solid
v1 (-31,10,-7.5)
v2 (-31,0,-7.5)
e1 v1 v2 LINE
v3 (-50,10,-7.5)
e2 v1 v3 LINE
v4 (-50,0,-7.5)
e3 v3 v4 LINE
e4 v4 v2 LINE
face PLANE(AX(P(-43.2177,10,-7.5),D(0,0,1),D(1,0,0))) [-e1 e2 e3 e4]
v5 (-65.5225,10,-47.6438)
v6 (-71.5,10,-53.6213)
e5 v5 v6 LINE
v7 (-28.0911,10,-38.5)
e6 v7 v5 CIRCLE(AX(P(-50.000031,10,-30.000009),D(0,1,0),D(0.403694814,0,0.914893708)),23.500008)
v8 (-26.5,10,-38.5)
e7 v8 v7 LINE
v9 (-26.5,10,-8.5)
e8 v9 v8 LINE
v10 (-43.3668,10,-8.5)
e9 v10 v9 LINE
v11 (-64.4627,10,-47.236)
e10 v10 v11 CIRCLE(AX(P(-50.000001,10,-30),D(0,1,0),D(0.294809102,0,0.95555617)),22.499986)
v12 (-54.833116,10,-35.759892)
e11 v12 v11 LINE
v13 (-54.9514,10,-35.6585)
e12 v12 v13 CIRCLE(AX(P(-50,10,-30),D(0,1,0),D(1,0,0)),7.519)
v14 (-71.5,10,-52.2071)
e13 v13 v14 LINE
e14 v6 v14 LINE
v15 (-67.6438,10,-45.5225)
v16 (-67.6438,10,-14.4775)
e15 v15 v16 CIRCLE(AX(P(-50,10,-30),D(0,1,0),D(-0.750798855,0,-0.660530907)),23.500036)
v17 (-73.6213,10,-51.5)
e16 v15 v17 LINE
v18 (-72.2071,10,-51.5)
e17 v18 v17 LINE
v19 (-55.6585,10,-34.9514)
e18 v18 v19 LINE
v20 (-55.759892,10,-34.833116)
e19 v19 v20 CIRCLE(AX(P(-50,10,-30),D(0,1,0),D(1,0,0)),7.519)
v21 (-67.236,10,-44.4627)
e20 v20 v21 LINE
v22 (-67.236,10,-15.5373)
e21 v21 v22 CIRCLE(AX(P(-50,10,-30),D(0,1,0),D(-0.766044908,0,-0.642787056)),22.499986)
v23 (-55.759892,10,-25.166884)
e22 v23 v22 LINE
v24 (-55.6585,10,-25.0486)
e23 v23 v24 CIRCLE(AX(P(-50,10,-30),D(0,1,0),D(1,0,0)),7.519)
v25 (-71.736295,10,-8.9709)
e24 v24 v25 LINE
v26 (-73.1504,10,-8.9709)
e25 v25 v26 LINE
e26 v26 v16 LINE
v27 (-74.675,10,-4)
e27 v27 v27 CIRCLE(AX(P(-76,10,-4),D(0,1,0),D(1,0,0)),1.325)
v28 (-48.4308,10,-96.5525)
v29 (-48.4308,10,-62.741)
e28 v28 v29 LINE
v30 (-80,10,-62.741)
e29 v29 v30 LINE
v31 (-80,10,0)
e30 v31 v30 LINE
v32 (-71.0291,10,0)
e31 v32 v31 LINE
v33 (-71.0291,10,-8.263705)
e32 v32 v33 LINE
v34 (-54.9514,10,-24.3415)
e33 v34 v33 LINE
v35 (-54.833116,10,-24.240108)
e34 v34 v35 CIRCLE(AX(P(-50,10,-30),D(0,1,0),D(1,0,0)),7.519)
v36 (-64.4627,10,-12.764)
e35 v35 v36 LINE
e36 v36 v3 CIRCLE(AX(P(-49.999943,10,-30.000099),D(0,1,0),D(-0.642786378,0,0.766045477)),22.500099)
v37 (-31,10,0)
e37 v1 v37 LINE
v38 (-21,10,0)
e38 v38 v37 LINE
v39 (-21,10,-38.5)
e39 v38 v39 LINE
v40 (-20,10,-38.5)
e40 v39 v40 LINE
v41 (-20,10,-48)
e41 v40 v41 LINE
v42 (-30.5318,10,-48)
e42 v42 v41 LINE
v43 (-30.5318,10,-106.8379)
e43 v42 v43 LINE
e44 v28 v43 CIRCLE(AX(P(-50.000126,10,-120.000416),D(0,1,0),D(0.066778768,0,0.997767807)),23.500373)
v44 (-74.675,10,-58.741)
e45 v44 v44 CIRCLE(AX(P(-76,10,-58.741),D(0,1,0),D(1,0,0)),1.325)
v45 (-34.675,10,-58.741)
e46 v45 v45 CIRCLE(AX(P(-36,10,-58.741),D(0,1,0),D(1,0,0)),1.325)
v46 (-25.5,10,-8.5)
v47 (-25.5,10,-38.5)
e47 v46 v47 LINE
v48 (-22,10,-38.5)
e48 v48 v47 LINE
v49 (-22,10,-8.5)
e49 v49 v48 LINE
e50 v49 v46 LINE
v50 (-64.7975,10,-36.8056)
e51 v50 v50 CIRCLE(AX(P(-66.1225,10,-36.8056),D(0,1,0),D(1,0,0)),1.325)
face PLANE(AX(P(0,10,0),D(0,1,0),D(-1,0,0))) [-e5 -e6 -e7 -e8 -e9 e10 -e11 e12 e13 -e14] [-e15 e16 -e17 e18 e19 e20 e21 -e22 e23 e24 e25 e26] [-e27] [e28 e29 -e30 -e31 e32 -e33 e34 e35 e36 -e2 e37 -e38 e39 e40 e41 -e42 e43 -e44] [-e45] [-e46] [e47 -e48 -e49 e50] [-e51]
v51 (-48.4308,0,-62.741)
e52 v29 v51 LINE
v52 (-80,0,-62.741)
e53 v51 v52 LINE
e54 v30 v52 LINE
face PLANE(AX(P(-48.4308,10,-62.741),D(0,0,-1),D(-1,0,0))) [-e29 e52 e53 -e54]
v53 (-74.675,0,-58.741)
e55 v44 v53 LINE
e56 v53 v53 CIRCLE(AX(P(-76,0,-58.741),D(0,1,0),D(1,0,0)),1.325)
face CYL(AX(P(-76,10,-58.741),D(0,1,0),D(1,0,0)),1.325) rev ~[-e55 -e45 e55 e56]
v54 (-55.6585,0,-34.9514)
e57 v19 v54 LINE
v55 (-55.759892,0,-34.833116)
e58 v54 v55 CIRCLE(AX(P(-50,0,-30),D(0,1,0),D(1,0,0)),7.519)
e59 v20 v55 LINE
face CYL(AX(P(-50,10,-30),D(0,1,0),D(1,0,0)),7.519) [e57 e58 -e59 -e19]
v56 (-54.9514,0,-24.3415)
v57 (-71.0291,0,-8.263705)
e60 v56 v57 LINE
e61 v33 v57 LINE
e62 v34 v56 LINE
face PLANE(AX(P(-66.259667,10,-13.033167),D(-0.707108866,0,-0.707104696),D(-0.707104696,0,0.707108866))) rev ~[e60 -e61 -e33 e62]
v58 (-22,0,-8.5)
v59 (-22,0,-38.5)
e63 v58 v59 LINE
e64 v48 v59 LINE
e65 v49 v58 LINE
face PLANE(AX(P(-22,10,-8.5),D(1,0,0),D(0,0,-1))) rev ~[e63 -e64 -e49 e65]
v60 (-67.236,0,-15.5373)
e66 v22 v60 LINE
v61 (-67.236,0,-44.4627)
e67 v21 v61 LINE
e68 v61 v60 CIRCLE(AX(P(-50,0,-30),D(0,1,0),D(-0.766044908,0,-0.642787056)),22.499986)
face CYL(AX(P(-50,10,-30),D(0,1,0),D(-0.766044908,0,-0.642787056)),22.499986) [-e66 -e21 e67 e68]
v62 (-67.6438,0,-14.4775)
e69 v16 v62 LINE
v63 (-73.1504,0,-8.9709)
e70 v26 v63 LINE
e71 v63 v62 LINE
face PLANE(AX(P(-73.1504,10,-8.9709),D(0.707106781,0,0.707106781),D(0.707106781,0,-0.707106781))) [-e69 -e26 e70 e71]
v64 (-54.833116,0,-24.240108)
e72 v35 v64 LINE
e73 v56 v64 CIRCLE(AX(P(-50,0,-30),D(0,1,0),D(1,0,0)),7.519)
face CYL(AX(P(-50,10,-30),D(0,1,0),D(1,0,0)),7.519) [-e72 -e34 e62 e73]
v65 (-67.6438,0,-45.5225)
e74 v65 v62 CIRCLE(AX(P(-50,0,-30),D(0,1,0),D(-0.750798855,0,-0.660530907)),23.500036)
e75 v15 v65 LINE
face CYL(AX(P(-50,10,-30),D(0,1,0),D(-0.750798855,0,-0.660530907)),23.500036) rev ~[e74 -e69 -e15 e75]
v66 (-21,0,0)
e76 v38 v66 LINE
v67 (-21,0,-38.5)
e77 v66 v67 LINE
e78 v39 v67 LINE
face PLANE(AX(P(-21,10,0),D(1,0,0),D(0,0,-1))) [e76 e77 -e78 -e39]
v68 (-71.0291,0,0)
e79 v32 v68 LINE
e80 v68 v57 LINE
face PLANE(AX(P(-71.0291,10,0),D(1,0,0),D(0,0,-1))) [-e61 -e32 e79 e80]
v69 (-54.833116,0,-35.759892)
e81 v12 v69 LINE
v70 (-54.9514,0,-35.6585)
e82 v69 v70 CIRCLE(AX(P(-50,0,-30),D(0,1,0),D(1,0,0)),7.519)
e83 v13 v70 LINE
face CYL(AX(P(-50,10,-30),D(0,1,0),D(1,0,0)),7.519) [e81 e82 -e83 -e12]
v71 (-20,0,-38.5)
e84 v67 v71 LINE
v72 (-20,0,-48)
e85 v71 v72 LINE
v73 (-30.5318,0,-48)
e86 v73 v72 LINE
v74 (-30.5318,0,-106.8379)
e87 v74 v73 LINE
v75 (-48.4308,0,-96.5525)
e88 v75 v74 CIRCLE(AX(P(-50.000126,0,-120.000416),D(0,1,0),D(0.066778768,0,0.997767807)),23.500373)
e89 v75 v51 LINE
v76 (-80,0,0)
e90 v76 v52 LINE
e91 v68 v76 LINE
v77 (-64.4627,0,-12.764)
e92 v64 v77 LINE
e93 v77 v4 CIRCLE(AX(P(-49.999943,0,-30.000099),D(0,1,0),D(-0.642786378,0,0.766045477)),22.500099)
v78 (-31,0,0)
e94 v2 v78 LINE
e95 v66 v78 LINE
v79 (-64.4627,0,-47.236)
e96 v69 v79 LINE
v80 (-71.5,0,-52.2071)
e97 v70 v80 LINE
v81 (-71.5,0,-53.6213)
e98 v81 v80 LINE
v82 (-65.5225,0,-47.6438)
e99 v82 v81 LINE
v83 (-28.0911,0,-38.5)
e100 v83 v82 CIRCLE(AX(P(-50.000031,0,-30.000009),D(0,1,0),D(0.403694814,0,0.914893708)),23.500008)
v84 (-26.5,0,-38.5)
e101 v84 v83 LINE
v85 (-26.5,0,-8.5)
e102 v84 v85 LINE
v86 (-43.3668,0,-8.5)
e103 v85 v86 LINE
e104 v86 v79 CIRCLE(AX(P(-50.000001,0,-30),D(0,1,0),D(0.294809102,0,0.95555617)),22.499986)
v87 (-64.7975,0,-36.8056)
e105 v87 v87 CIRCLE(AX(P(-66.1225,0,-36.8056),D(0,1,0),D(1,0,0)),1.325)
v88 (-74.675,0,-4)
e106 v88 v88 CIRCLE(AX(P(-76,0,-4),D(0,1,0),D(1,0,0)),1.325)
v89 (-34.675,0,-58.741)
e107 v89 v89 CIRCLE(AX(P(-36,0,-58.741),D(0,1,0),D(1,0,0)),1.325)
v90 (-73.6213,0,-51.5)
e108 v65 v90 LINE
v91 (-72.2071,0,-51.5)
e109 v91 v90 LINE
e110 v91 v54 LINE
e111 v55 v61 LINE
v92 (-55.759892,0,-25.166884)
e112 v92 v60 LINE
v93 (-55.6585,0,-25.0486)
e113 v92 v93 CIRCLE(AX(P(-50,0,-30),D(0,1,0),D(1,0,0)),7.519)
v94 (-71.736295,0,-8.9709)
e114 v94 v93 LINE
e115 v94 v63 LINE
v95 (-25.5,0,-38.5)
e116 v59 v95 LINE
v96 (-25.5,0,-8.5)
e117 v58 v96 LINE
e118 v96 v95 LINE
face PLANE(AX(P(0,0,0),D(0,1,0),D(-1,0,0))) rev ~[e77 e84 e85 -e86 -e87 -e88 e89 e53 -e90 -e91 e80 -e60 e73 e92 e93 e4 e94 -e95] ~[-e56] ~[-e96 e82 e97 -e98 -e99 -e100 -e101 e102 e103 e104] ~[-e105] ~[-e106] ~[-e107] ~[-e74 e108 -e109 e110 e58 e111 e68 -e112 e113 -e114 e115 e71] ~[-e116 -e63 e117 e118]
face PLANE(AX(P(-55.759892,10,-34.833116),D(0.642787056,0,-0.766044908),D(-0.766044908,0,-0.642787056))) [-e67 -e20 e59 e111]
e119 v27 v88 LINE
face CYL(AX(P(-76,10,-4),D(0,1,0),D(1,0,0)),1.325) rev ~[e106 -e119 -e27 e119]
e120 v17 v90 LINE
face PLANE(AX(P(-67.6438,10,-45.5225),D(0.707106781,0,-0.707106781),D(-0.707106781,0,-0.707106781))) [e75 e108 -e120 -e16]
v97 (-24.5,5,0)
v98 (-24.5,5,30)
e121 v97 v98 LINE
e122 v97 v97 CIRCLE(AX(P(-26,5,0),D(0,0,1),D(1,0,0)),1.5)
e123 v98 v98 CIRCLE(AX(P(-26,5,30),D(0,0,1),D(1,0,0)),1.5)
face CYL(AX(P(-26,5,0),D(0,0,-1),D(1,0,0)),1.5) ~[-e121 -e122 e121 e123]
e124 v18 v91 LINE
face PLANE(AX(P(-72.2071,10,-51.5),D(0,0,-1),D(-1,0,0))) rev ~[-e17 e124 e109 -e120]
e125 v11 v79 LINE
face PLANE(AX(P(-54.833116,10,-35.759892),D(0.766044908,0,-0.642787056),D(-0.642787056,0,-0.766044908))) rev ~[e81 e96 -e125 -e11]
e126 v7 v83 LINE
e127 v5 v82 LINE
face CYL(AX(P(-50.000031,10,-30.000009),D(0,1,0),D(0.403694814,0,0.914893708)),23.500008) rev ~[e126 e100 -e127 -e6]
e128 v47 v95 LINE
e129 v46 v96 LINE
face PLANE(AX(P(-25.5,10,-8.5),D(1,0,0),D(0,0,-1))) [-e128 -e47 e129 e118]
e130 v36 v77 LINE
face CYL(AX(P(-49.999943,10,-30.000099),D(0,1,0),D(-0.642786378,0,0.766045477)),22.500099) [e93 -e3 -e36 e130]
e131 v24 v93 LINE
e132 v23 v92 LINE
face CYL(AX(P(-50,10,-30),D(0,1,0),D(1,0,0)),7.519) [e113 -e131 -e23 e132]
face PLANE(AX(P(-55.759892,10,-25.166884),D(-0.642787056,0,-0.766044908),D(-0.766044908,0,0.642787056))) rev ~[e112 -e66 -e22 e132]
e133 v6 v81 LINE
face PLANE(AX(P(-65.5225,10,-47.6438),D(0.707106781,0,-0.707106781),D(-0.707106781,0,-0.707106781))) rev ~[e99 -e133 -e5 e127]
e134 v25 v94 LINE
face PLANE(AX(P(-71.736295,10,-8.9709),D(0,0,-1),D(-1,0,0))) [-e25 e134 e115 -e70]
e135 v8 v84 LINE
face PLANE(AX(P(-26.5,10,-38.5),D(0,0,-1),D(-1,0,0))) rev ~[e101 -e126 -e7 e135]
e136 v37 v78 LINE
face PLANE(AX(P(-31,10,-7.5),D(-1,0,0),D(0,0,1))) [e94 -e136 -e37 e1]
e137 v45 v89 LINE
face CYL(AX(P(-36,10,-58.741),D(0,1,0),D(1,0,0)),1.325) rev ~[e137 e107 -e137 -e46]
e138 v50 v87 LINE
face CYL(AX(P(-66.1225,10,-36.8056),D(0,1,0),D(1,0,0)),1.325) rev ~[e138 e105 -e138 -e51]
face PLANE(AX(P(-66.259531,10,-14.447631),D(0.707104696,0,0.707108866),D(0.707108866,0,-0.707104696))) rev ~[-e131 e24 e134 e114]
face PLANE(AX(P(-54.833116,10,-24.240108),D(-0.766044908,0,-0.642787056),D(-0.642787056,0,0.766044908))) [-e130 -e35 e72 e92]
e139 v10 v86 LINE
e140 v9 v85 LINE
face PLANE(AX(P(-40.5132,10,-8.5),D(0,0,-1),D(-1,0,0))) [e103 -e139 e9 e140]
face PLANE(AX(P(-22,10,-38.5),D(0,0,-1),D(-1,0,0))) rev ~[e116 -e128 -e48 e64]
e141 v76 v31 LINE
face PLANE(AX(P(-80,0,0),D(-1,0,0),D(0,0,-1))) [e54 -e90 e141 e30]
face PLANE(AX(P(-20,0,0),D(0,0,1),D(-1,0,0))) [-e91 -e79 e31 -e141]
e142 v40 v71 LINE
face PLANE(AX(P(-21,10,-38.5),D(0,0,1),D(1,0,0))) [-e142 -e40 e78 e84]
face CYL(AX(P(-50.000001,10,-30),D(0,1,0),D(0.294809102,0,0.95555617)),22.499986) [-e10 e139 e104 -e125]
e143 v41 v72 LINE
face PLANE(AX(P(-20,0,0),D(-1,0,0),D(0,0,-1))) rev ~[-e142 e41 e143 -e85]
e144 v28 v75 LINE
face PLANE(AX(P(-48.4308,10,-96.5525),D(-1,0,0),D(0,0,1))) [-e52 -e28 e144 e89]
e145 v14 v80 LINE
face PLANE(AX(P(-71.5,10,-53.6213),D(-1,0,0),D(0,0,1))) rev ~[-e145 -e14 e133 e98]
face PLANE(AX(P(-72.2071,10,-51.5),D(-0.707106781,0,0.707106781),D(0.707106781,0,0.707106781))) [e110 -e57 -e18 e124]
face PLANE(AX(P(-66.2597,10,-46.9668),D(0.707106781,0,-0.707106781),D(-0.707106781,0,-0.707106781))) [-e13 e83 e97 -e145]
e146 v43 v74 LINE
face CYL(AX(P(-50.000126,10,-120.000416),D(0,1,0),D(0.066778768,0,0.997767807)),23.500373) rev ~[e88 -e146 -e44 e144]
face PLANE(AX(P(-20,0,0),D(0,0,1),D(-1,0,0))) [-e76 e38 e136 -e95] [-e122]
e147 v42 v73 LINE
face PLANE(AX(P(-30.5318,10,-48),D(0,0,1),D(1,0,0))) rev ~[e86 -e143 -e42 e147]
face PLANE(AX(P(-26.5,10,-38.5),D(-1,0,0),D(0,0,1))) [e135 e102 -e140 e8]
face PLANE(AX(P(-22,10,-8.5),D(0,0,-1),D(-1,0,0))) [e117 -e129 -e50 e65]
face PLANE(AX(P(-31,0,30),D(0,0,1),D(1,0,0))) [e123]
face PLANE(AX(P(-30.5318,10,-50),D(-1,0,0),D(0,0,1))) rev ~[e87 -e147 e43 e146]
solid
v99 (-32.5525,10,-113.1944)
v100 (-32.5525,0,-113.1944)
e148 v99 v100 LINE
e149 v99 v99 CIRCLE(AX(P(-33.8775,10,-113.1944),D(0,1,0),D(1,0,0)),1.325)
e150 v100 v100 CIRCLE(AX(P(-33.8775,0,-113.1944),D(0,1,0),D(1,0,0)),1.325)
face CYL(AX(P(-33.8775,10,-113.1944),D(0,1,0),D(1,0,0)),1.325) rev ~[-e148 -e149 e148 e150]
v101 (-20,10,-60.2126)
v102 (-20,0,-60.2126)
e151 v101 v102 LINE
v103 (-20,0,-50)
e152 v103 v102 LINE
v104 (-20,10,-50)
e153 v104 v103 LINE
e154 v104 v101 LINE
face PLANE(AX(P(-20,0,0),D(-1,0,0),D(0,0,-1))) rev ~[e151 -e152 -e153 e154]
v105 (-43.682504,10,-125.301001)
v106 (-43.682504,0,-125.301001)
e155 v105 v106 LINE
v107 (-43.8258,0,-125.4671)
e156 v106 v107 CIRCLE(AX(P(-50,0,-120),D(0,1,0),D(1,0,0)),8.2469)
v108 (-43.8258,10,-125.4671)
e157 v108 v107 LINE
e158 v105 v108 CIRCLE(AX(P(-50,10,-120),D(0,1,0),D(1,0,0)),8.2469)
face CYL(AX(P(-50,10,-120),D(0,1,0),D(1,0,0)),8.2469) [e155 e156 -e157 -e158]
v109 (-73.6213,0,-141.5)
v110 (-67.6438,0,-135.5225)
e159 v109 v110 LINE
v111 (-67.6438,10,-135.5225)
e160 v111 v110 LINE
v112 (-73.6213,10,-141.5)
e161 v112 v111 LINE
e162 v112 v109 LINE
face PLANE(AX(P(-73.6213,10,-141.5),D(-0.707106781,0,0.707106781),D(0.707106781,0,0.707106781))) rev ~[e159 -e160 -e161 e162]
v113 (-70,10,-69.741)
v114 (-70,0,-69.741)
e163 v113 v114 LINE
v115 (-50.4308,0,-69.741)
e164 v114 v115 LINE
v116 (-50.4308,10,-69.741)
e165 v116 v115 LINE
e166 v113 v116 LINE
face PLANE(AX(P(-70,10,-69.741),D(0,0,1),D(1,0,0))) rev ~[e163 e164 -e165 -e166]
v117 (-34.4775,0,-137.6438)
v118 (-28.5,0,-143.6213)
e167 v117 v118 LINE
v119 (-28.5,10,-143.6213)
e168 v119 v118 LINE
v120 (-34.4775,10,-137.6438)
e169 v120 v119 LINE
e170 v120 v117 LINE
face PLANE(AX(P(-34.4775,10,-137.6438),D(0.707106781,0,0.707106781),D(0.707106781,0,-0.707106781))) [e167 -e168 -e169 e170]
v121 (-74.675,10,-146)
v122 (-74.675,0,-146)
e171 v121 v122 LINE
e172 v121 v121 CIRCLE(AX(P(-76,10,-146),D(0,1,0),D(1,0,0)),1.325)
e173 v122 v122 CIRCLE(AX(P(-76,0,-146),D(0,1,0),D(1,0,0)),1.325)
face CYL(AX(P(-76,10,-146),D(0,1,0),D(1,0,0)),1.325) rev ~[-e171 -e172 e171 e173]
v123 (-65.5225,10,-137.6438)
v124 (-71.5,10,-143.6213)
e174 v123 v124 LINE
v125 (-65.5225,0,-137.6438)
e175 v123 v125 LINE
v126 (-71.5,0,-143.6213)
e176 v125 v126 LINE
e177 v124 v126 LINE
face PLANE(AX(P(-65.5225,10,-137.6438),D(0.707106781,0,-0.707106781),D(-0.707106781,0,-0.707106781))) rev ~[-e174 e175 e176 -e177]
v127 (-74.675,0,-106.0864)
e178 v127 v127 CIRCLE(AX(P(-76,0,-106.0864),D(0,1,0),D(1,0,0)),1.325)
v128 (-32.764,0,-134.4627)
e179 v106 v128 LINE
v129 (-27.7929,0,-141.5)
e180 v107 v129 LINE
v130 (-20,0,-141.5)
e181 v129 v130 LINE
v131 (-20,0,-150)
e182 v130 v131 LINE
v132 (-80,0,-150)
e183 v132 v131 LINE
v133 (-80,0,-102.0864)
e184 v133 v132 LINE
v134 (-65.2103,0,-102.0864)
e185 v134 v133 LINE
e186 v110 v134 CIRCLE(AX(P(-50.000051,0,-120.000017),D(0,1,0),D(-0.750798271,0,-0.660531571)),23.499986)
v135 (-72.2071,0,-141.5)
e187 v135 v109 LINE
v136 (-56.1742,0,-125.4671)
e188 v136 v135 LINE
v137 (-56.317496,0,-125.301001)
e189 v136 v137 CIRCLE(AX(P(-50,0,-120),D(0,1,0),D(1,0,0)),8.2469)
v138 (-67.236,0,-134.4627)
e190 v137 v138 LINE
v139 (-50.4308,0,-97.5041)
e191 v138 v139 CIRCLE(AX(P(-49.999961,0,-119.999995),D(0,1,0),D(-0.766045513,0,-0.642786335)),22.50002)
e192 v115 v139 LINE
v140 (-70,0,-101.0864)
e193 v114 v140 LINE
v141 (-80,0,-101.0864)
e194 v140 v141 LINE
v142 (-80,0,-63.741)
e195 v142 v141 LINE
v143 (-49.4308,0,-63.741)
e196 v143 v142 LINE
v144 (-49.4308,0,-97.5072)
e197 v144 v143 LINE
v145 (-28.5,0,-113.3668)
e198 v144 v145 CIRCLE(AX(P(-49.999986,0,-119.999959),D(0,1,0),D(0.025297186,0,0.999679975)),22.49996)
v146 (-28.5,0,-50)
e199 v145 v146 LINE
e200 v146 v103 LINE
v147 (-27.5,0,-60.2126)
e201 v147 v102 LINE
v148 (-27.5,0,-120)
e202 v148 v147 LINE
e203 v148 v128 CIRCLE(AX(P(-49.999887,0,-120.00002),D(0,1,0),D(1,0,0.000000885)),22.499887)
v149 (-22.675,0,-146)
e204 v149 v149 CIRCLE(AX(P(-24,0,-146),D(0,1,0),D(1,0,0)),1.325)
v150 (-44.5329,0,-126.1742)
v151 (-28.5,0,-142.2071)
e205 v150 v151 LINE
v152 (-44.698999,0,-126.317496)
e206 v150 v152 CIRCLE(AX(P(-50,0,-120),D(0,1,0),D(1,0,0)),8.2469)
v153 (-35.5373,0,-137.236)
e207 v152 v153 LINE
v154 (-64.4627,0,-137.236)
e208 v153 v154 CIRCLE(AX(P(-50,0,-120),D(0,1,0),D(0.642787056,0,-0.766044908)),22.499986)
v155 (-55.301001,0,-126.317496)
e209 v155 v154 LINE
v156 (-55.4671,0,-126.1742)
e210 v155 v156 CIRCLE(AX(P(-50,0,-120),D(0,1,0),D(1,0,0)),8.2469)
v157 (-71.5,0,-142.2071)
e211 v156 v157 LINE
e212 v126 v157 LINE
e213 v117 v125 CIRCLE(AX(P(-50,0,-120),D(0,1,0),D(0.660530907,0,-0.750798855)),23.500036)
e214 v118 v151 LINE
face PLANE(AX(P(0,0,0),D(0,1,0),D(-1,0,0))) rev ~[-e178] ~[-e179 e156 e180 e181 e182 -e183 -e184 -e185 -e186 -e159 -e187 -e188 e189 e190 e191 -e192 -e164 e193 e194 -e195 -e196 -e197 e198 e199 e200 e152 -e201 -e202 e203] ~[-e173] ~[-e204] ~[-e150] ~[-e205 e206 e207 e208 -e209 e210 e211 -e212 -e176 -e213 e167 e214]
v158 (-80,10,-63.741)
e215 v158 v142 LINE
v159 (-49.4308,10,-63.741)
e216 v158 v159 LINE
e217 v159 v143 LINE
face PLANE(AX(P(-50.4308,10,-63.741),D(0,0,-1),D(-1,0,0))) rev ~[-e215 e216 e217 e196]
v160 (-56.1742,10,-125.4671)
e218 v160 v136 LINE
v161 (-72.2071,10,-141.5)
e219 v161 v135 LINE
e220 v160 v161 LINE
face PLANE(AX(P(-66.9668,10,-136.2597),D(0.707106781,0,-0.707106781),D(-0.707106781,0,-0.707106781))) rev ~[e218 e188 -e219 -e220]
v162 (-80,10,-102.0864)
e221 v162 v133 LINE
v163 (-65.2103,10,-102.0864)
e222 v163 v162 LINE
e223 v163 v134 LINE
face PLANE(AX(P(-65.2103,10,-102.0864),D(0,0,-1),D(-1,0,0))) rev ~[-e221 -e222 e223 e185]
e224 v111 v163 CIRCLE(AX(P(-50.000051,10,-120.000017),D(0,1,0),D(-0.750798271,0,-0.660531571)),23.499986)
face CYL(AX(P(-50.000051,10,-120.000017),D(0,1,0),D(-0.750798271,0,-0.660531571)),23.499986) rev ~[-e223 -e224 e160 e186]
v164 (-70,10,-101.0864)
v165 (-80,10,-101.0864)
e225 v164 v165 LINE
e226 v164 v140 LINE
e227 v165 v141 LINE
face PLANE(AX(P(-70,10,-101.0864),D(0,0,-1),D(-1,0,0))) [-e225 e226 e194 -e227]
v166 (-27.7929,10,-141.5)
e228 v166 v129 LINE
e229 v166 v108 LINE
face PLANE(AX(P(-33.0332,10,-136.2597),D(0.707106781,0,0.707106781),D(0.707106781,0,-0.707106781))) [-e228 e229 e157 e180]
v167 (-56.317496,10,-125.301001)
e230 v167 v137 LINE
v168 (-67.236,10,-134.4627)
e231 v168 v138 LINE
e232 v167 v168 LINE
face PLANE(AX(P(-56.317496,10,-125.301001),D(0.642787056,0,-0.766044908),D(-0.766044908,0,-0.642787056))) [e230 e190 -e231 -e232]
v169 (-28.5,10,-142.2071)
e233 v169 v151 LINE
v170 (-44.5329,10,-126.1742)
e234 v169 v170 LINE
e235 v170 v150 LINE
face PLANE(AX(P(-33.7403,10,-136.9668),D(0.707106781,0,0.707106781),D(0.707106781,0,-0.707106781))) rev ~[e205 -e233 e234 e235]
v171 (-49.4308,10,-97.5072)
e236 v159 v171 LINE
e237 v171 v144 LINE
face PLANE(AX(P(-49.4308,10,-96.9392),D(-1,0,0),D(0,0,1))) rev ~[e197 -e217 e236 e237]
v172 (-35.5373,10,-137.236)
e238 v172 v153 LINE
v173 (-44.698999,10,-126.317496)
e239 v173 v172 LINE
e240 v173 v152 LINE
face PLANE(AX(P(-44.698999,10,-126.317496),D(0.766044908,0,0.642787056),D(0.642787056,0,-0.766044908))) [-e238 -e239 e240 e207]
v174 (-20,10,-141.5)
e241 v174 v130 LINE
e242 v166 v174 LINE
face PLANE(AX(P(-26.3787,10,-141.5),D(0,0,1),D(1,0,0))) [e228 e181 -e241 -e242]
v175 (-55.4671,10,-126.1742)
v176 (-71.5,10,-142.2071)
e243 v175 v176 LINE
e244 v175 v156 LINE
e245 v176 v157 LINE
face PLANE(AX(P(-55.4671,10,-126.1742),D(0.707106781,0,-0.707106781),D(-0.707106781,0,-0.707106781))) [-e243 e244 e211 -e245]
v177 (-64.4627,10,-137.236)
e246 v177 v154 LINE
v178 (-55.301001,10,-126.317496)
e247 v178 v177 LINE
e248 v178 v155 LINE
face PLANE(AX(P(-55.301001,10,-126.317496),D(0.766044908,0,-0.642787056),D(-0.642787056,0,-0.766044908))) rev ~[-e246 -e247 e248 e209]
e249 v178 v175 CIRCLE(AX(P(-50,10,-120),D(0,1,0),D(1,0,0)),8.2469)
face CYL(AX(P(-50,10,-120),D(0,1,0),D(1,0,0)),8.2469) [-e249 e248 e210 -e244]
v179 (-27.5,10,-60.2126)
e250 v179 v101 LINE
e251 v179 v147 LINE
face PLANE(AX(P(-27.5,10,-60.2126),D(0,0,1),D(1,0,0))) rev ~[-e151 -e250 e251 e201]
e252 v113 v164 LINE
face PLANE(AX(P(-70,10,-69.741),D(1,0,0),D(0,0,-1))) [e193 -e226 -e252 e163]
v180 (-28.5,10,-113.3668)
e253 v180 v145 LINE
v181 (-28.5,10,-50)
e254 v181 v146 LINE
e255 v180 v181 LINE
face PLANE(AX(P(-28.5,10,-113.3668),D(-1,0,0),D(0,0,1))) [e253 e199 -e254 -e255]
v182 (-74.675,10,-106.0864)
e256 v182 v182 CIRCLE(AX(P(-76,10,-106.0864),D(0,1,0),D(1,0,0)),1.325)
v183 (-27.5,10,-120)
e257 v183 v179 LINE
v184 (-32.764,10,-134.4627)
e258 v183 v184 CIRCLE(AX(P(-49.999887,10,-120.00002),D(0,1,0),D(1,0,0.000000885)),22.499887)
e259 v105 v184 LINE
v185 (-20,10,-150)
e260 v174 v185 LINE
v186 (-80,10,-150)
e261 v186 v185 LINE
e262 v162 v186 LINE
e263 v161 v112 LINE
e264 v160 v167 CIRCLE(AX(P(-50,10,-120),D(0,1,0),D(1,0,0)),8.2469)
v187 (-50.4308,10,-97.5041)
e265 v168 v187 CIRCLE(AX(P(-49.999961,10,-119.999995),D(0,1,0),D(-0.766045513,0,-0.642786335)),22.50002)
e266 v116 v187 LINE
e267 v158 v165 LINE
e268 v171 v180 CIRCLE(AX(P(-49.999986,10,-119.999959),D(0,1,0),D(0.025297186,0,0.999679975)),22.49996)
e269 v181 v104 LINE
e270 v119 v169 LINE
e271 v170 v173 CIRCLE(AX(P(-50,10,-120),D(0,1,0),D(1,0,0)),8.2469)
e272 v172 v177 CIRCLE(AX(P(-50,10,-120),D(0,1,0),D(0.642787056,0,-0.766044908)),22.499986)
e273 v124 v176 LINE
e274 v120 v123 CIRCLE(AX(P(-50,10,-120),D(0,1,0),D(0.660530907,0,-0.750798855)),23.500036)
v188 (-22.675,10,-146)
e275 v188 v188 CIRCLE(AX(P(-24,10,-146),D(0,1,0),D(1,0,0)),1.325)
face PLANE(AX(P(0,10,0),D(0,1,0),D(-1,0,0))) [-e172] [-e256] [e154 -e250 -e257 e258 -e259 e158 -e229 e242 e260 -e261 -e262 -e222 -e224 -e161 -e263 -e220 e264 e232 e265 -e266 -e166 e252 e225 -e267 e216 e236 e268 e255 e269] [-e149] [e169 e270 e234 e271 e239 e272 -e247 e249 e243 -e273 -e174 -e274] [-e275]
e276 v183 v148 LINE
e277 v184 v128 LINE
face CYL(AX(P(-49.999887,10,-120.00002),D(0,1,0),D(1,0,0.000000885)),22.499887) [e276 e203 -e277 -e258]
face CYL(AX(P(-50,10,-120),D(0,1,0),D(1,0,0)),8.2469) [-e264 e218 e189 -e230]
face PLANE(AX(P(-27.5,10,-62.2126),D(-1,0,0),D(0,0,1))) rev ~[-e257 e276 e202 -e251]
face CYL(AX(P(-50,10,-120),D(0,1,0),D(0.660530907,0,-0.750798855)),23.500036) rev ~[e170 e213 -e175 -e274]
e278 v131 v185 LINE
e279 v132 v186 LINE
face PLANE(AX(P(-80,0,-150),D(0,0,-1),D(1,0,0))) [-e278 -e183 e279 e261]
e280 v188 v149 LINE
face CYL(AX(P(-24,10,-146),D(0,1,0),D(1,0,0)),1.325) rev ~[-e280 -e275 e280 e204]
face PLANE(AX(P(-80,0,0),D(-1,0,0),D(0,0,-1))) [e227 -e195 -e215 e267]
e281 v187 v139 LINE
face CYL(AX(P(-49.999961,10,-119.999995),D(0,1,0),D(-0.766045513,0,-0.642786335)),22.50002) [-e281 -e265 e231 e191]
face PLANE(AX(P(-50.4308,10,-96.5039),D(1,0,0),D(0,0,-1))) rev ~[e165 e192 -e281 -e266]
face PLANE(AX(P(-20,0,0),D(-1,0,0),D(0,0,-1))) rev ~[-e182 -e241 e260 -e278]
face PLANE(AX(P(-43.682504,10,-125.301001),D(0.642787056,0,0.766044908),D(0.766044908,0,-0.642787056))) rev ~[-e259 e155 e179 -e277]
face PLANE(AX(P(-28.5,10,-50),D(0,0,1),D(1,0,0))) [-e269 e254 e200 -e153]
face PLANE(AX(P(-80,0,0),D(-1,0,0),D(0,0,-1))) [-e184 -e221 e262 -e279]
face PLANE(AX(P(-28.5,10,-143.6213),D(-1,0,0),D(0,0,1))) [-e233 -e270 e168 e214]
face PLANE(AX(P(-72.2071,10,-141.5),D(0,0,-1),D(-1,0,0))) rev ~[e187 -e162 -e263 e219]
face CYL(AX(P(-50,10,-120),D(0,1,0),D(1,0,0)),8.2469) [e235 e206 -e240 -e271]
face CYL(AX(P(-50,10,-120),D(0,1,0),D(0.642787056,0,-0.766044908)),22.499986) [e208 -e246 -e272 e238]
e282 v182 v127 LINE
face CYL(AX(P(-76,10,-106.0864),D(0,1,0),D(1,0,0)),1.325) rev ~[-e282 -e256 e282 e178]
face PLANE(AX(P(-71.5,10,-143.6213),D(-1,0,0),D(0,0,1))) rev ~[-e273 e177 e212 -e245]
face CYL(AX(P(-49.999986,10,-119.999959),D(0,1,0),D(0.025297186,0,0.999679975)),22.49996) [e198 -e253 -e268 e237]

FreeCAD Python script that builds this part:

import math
import FreeCAD as App
import Part
import Sketcher

V = App.Vector
Q = App.Units.Quantity


def add_polygon(sketch, points):
    """Adds a closed chain of lines whose ends are joined by coincident constraints."""
    first, n = sketch.GeometryCount, len(points)
    for a, b in zip(points, points[1:] + points[:1]):
        sketch.addGeometry(Part.LineSegment(App.Vector(*a, 0), App.Vector(*b, 0)), False)
    for i in range(n):
        sketch.addConstraint(Sketcher.Constraint("Coincident", first + i, 2, first + (i + 1) % n, 1))

doc = App.newDocument("Part")
body = doc.addObject("PartDesign::Body", "Body")
body.AllowCompound = True

sketch1 = body.newObject("Sketcher::SketchObject", "Sketch")
sketch1.AttachmentSupport = (doc.getObject("XZ_Plane"), [""])
sketch1.MapMode = "FlatFace"
add_polygon(sketch1, [(-80, 0), (-20, 0), (-20, -150), (-80, -150)])
sketch1.addConstraint([
    Sketcher.Constraint("Horizontal", 0),
    Sketcher.Constraint("Vertical", 1),
    Sketcher.Constraint("Horizontal", 2),
    Sketcher.Constraint("Vertical", 3),
    Sketcher.Constraint("PointOnObject", 0, 2, -1),
    Sketcher.Constraint("DistanceY", 1, 2, 1, 1, 150.0),
    Sketcher.Constraint("DistanceX", 0, 2, -1, 1, 20.0),
    Sketcher.Constraint("DistanceX", 0, 1, 0, 2, 60.0),
])
pad1 = body.newObject("PartDesign::Pad", "Pad")
pad1.Profile = sketch1
pad1.Length = 10
pad1.Reversed = True

sketch2 = body.newObject("Sketcher::SketchObject", "Sketch001")
sketch2.AttachmentSupport = (doc.getObject("XZ_Plane"), [""])
sketch2.MapMode = "FlatFace"
sketch2.AttachmentOffset = App.Placement(V(0, 0, -10), App.Rotation())
sketch2.addGeometry(Part.LineSegment(V(-65.21, -102.09, 0), V(-80, -102.09, 0)), False)
sketch2.addGeometry(Part.LineSegment(V(-80, -102.09, 0), V(-80, -101.09, 0)), False)
sketch2.addGeometry(Part.LineSegment(V(-80, -101.09, 0), V(-70, -101.09, 0)), False)
sketch2.addGeometry(Part.LineSegment(V(-70, -101.09, 0), V(-70, -69.74, 0)), False)
sketch2.addGeometry(Part.LineSegment(V(-70, -69.74, 0), V(-50.43, -69.74, 0)), False)
sketch2.addGeometry(Part.LineSegment(V(-50.43, -69.74, 0), V(-50.43, -97.5, 0)), False)
sketch2.addGeometry(Part.ArcOfCircle(Part.Circle(V(-50, -120, 0), V(0, 0, 1), 22.5), math.radians(91), math.radians(220)), False)
sketch2.addGeometry(Part.LineSegment(V(-67.24, -134.46, 0), V(-56.32, -125.3, 0)), False)
sketch2.addGeometry(Part.ArcOfCircle(Part.Circle(V(-50, -120, 0), V(0, 0, 1), 8.25), math.radians(-140), math.radians(-138.48)), False)
sketch2.addGeometry(Part.LineSegment(V(-56.17, -125.47, 0), V(-72.21, -141.5, 0)), False)
sketch2.addGeometry(Part.LineSegment(V(-72.21, -141.5, 0), V(-73.62, -141.5, 0)), False)
sketch2.addGeometry(Part.LineSegment(V(-73.62, -141.5, 0), V(-67.64, -135.52, 0)), False)
sketch2.addGeometry(Part.ArcOfCircle(Part.Circle(V(-50, -120, 0), V(0, 0, 1), 23.5), math.radians(130), math.radians(221)), False)
sketch2.addGeometry(Part.LineSegment(V(-65.52, -137.64, 0), V(-71.5, -143.62, 0)), False)
sketch2.addGeometry(Part.LineSegment(V(-71.5, -143.62, 0), V(-71.5, -142.21, 0)), False)
sketch2.addGeometry(Part.LineSegment(V(-71.5, -142.21, 0), V(-55.47, -126.17, 0)), False)
sketch2.addGeometry(Part.ArcOfCircle(Part.Circle(V(-50, -120, 0), V(0, 0, 1), 8.25), math.radians(-131.52), math.radians(-130)), False)
sketch2.addGeometry(Part.LineSegment(V(-55.3, -126.32, 0), V(-64.46, -137.24, 0)), False)
sketch2.addGeometry(Part.ArcOfCircle(Part.Circle(V(-50, -120, 0), V(0, 0, 1), 22.5), math.radians(-130), math.radians(-50)), False)
sketch2.addGeometry(Part.LineSegment(V(-35.54, -137.24, 0), V(-44.7, -126.32, 0)), False)
sketch2.addGeometry(Part.ArcOfCircle(Part.Circle(V(-50, -120, 0), V(0, 0, 1), 8.25), math.radians(-50), math.radians(-48.48)), False)
sketch2.addGeometry(Part.LineSegment(V(-44.53, -126.17, 0), V(-28.5, -142.21, 0)), False)
sketch2.addGeometry(Part.LineSegment(V(-28.5, -142.21, 0), V(-28.5, -143.62, 0)), False)
sketch2.addGeometry(Part.LineSegment(V(-28.5, -143.62, 0), V(-34.48, -137.64, 0)), False)
sketch2.addGeometry(Part.ArcOfCircle(Part.Circle(V(-50, -120, 0), V(0, 0, 1), 23.5), math.radians(-131), math.radians(-49)), False)
sketch2.addGeometry(Part.LineSegment(V(-20, -141.5, 0), V(-27.79, -141.5, 0)), False)
sketch2.addGeometry(Part.LineSegment(V(-27.79, -141.5, 0), V(-43.83, -125.47, 0)), False)
sketch2.addGeometry(Part.ArcOfCircle(Part.Circle(V(-50, -120, 0), V(0, 0, 1), 8.25), math.radians(-41.52), math.radians(-40)), False)
sketch2.addGeometry(Part.LineSegment(V(-43.68, -125.3, 0), V(-32.76, -134.46, 0)), False)
sketch2.addGeometry(Part.ArcOfCircle(Part.Circle(V(-50, -120, 0), V(0, 0, 1), 22.5), math.radians(-40), math.radians(0)), False)
sketch2.addGeometry(Part.LineSegment(V(-27.5, -120, 0), V(-27.5, -60.21, 0)), False)
sketch2.addGeometry(Part.LineSegment(V(-27.5, -60.21, 0), V(-20, -60.21, 0)), False)
sketch2.addGeometry(Part.LineSegment(V(-20, -60.21, 0), V(-20, -141.5, 0)), False)
sketch2.addGeometry(Part.LineSegment(V(-49.43, -63.74, 0), V(-80, -63.74, 0)), False)
sketch2.addGeometry(Part.LineSegment(V(-80, -63.74, 0), V(-80, -62.74, 0)), False)
sketch2.addGeometry(Part.LineSegment(V(-80, -62.74, 0), V(-48.43, -62.74, 0)), False)
sketch2.addGeometry(Part.LineSegment(V(-48.43, -62.74, 0), V(-48.43, -96.55, 0)), False)
sketch2.addGeometry(Part.ArcOfCircle(Part.Circle(V(-50, -120, 0), V(0, 0, 1), 23.5), math.radians(34), math.radians(86)), False)
sketch2.addGeometry(Part.LineSegment(V(-30.53, -106.84, 0), V(-30.53, -48, 0)), False)
sketch2.addGeometry(Part.LineSegment(V(-30.53, -48, 0), V(-20, -48, 0)), False)
sketch2.addGeometry(Part.LineSegment(V(-20, -48, 0), V(-20, -50, 0)), False)
sketch2.addGeometry(Part.LineSegment(V(-20, -50, 0), V(-28.5, -50, 0)), False)
sketch2.addGeometry(Part.LineSegment(V(-28.5, -50, 0), V(-28.5, -113.37, 0)), False)
sketch2.addGeometry(Part.ArcOfCircle(Part.Circle(V(-50, -120, 0), V(0, 0, 1), 22.5), math.radians(17), math.radians(89)), False)
sketch2.addGeometry(Part.LineSegment(V(-49.43, -97.51, 0), V(-49.43, -63.74, 0)), False)
add_polygon(sketch2, [(-20, 0), (-20, -38.5), (-21, -38.5), (-21, 0)])
sketch2.addGeometry(Part.LineSegment(V(-72.21, -51.5, 0), V(-73.62, -51.5, 0)), False)
sketch2.addGeometry(Part.LineSegment(V(-73.62, -51.5, 0), V(-67.64, -45.52, 0)), False)
sketch2.addGeometry(Part.ArcOfCircle(Part.Circle(V(-50, -30, 0), V(0, 0, 1), 23.5), math.radians(139), math.radians(221)), False)
sketch2.addGeometry(Part.LineSegment(V(-67.64, -14.48, 0), V(-73.15, -8.97, 0)), False)
sketch2.addGeometry(Part.LineSegment(V(-73.15, -8.97, 0), V(-71.74, -8.97, 0)), False)
sketch2.addGeometry(Part.LineSegment(V(-71.74, -8.97, 0), V(-55.66, -25.05, 0)), False)
sketch2.addGeometry(Part.ArcOfCircle(Part.Circle(V(-50, -30, 0), V(0, 0, 1), 7.52), math.radians(138.81), math.radians(140)), False)
sketch2.addGeometry(Part.LineSegment(V(-55.76, -25.17, 0), V(-67.24, -15.54, 0)), False)
sketch2.addGeometry(Part.ArcOfCircle(Part.Circle(V(-50, -30, 0), V(0, 0, 1), 22.5), math.radians(140), math.radians(220)), False)
sketch2.addGeometry(Part.LineSegment(V(-67.24, -44.46, 0), V(-55.76, -34.83, 0)), False)
sketch2.addGeometry(Part.ArcOfCircle(Part.Circle(V(-50, -30, 0), V(0, 0, 1), 7.52), math.radians(-140), math.radians(-138.81)), False)
sketch2.addGeometry(Part.LineSegment(V(-55.66, -34.95, 0), V(-72.21, -51.5, 0)), False)
sketch2.addGeometry(Part.LineSegment(V(-71.5, -53.62, 0), V(-71.5, -52.21, 0)), False)
sketch2.addGeometry(Part.LineSegment(V(-71.5, -52.21, 0), V(-54.95, -35.66, 0)), False)
sketch2.addGeometry(Part.ArcOfCircle(Part.Circle(V(-50, -30, 0), V(0, 0, 1), 7.52), math.radians(-131.19), math.radians(-130)), False)
sketch2.addGeometry(Part.LineSegment(V(-54.83, -35.76, 0), V(-64.46, -47.24, 0)), False)
sketch2.addGeometry(Part.ArcOfCircle(Part.Circle(V(-50, -30, 0), V(0, 0, 1), 22.5), math.radians(-130), math.radians(73)), False)
sketch2.addGeometry(Part.LineSegment(V(-43.37, -8.5, 0), V(-26.5, -8.5, 0)), False)
sketch2.addGeometry(Part.LineSegment(V(-26.5, -8.5, 0), V(-26.5, -38.5, 0)), False)
sketch2.addGeometry(Part.LineSegment(V(-26.5, -38.5, 0), V(-28.09, -38.5, 0)), False)
sketch2.addGeometry(Part.ArcOfCircle(Part.Circle(V(-50, -30, 0), V(0, 0, 1), 23.5), math.radians(-131), math.radians(-21)), False)
sketch2.addGeometry(Part.LineSegment(V(-65.52, -47.64, 0), V(-71.5, -53.62, 0)), False)
add_polygon(sketch2, [(-22, -8.5), (-22, -38.5), (-25.5, -38.5), (-25.5, -8.5)])
sketch2.addGeometry(Part.LineSegment(V(-71.03, 0, 0), V(-31, 0, 0)), False)
sketch2.addGeometry(Part.LineSegment(V(-31, 0, 0), V(-31, -7.5, 0)), False)
sketch2.addGeometry(Part.LineSegment(V(-31, -7.5, 0), V(-50, -7.5, 0)), False)
sketch2.addGeometry(Part.ArcOfCircle(Part.Circle(V(-50, -30, 0), V(0, 0, 1), 22.5), math.radians(90), math.radians(130)), False)
sketch2.addGeometry(Part.LineSegment(V(-64.46, -12.76, 0), V(-54.83, -24.24, 0)), False)
sketch2.addGeometry(Part.ArcOfCircle(Part.Circle(V(-50, -30, 0), V(0, 0, 1), 7.52), math.radians(130), math.radians(131.19)), False)
sketch2.addGeometry(Part.LineSegment(V(-54.95, -24.34, 0), V(-71.03, -8.26, 0)), False)
sketch2.addGeometry(Part.LineSegment(V(-71.03, -8.26, 0), V(-71.03, 0, 0)), False)
sketch2.addConstraint([
    Sketcher.Constraint("Coincident", 0, 2, 1, 1),
    Sketcher.Constraint("Coincident", 1, 2, 2, 1),
    Sketcher.Constraint("Coincident", 2, 2, 3, 1),
    Sketcher.Constraint("Coincident", 3, 2, 4, 1),
    Sketcher.Constraint("Coincident", 4, 2, 5, 1),
    Sketcher.Constraint("Coincident", 5, 2, 6, 1),
    Sketcher.Constraint("Coincident", 6, 2, 7, 1),
    Sketcher.Constraint("Coincident", 7, 2, 8, 1),
    Sketcher.Constraint("Coincident", 8, 2, 9, 1),
    Sketcher.Constraint("Coincident", 9, 2, 10, 1),
    Sketcher.Constraint("Coincident", 10, 2, 11, 1),
    Sketcher.Constraint("Coincident", 11, 2, 12, 2),
    Sketcher.Constraint("Coincident", 12, 1, 0, 1),
    Sketcher.Constraint("Coincident", 13, 2, 14, 1),
    Sketcher.Constraint("Coincident", 14, 2, 15, 1),
    Sketcher.Constraint("Coincident", 15, 2, 16, 1),
    Sketcher.Constraint("Coincident", 16, 2, 17, 1),
    Sketcher.Constraint("Coincident", 17, 2, 18, 1),
    Sketcher.Constraint("Coincident", 18, 2, 19, 1),
    Sketcher.Constraint("Coincident", 19, 2, 20, 1),
    Sketcher.Constraint("Coincident", 20, 2, 21, 1),
    Sketcher.Constraint("Coincident", 21, 2, 22, 1),
    Sketcher.Constraint("Coincident", 22, 2, 23, 1),
    Sketcher.Constraint("Coincident", 23, 2, 24, 2),
    Sketcher.Constraint("Coincident", 24, 1, 13, 1),
    Sketcher.Constraint("Coincident", 25, 2, 26, 1),
    Sketcher.Constraint("Coincident", 26, 2, 27, 1),
    Sketcher.Constraint("Coincident", 27, 2, 28, 1),
    Sketcher.Constraint("Coincident", 28, 2, 29, 1),
    Sketcher.Constraint("Tangent", 29, 2, 30, 1),
    Sketcher.Constraint("Coincident", 30, 2, 31, 1),
    Sketcher.Constraint("Coincident", 31, 2, 32, 1),
    Sketcher.Constraint("Coincident", 32, 2, 25, 1),
    Sketcher.Constraint("Coincident", 33, 2, 34, 1),
    Sketcher.Constraint("Coincident", 34, 2, 35, 1),
    Sketcher.Constraint("Coincident", 35, 2, 36, 1),
    Sketcher.Constraint("Coincident", 36, 2, 37, 2),
    Sketcher.Constraint("Coincident", 37, 1, 38, 1),
    Sketcher.Constraint("Coincident", 38, 2, 39, 1),
    Sketcher.Constraint("Coincident", 39, 2, 40, 1),
    Sketcher.Constraint("Coincident", 40, 2, 41, 1),
    Sketcher.Constraint("Coincident", 41, 2, 42, 1),
    Sketcher.Constraint("Coincident", 42, 2, 43, 1),
    Sketcher.Constraint("Coincident", 43, 2, 44, 1),
    Sketcher.Constraint("Coincident", 44, 2, 33, 1),
    Sketcher.Constraint("Coincident", 49, 2, 50, 1),
    Sketcher.Constraint("Coincident", 50, 2, 51, 2),
    Sketcher.Constraint("Coincident", 51, 1, 52, 1),
    Sketcher.Constraint("Coincident", 52, 2, 53, 1),
    Sketcher.Constraint("Coincident", 53, 2, 54, 1),
    Sketcher.Constraint("Coincident", 54, 2, 55, 1),
    Sketcher.Constraint("Coincident", 55, 2, 56, 1),
    Sketcher.Constraint("Coincident", 56, 2, 57, 1),
    Sketcher.Constraint("Coincident", 57, 2, 58, 1),
    Sketcher.Constraint("Coincident", 58, 2, 59, 1),
    Sketcher.Constraint("Coincident", 59, 2, 60, 1),
    Sketcher.Constraint("Coincident", 60, 2, 49, 1),
    Sketcher.Constraint("Coincident", 61, 2, 62, 1),
    Sketcher.Constraint("Coincident", 62, 2, 63, 1),
    Sketcher.Constraint("Coincident", 63, 2, 64, 1),
    Sketcher.Constraint("Coincident", 64, 2, 65, 1),
    Sketcher.Constraint("Coincident", 65, 2, 66, 1),
    Sketcher.Constraint("Coincident", 66, 2, 67, 1),
    Sketcher.Constraint("Coincident", 67, 2, 68, 1),
    Sketcher.Constraint("Coincident", 68, 2, 69, 2),
    Sketcher.Constraint("Coincident", 69, 1, 70, 1),
    Sketcher.Constraint("Coincident", 70, 2, 61, 1),
    Sketcher.Constraint("Coincident", 75, 2, 76, 1),
    Sketcher.Constraint("Coincident", 76, 2, 77, 1),
    Sketcher.Constraint("Tangent", 77, 2, 78, 1),
    Sketcher.Constraint("Coincident", 78, 2, 79, 1),
    Sketcher.Constraint("Coincident", 79, 2, 80, 1),
    Sketcher.Constraint("Coincident", 80, 2, 81, 1),
    Sketcher.Constraint("Coincident", 81, 2, 82, 1),
    Sketcher.Constraint("Coincident", 82, 2, 75, 1),
    Sketcher.Constraint("Horizontal", 0),
    Sketcher.Constraint("Vertical", 1),
    Sketcher.Constraint("Horizontal", 2),
    Sketcher.Constraint("Vertical", 3),
    Sketcher.Constraint("Horizontal", 4),
    Sketcher.Constraint("Vertical", 5),
    Sketcher.Constraint("Horizontal", 10),
    Sketcher.Constraint("Vertical", 14),
    Sketcher.Constraint("Vertical", 22),
    Sketcher.Constraint("Horizontal", 25),
    Sketcher.Constraint("Vertical", 30),
    Sketcher.Constraint("Horizontal", 31),
    Sketcher.Constraint("Vertical", 32),
    Sketcher.Constraint("Horizontal", 33),
    Sketcher.Constraint("Vertical", 34),
    Sketcher.Constraint("Horizontal", 35),
    Sketcher.Constraint("Vertical", 36),
    Sketcher.Constraint("Vertical", 38),
    Sketcher.Constraint("Horizontal", 39),
    Sketcher.Constraint("Vertical", 40),
    Sketcher.Constraint("Horizontal", 41),
    Sketcher.Constraint("Vertical", 42),
    Sketcher.Constraint("Vertical", 44),
    Sketcher.Constraint("Vertical", 45),
    Sketcher.Constraint("Horizontal", 46),
    Sketcher.Constraint("Vertical", 47),
    Sketcher.Constraint("Horizontal", 48),
    Sketcher.Constraint("Horizontal", 49),
    Sketcher.Constraint("Horizontal", 53),
    Sketcher.Constraint("Vertical", 61),
    Sketcher.Constraint("Horizontal", 66),
    Sketcher.Constraint("Vertical", 67),
    Sketcher.Constraint("Horizontal", 68),
    Sketcher.Constraint("Vertical", 71),
    Sketcher.Constraint("Horizontal", 72),
    Sketcher.Constraint("Vertical", 73),
    Sketcher.Constraint("Horizontal", 74),
    Sketcher.Constraint("Horizontal", 75),
    Sketcher.Constraint("Vertical", 76),
    Sketcher.Constraint("Horizontal", 77),
    Sketcher.Constraint("Vertical", 82),
    Sketcher.Constraint("Coincident", 8, 3, 6, 3),
    Sketcher.Constraint("Coincident", 12, 3, 6, 3),
    Sketcher.Constraint("Coincident", 16, 3, 6, 3),
    Sketcher.Constraint("Coincident", 18, 3, 6, 3),
    Sketcher.Constraint("Coincident", 20, 3, 6, 3),
    Sketcher.Constraint("Coincident", 24, 3, 6, 3),
    Sketcher.Constraint("Coincident", 27, 3, 6, 3),
    Sketcher.Constraint("Coincident", 29, 3, 6, 3),
    Sketcher.Constraint("Coincident", 37, 3, 6, 3),
    Sketcher.Constraint("Coincident", 43, 3, 6, 3),
    Sketcher.Constraint("Coincident", 55, 3, 51, 3),
    Sketcher.Constraint("Coincident", 57, 3, 51, 3),
    Sketcher.Constraint("Coincident", 59, 3, 51, 3),
    Sketcher.Constraint("Coincident", 63, 3, 51, 3),
    Sketcher.Constraint("Coincident", 65, 3, 51, 3),
    Sketcher.Constraint("Coincident", 69, 3, 51, 3),
    Sketcher.Constraint("Coincident", 78, 3, 51, 3),
    Sketcher.Constraint("Coincident", 80, 3, 51, 3),
    Sketcher.Constraint("Equal", 8, 16),
    Sketcher.Constraint("Equal", 6, 18),
    Sketcher.Constraint("Equal", 16, 20),
    Sketcher.Constraint("Equal", 12, 24),
    Sketcher.Constraint("Equal", 20, 27),
    Sketcher.Constraint("Equal", 18, 29),
    Sketcher.Constraint("Equal", 24, 37),
    Sketcher.Constraint("Equal", 29, 43),
    Sketcher.Constraint("Equal", 37, 51),
    Sketcher.Constraint("Equal", 43, 57),
    Sketcher.Constraint("Equal", 55, 59),
    Sketcher.Constraint("Equal", 59, 63),
    Sketcher.Constraint("Equal", 57, 65),
    Sketcher.Constraint("Equal", 51, 69),
    Sketcher.Constraint("Equal", 65, 78),
    Sketcher.Constraint("Equal", 63, 80),
    Sketcher.Constraint("PointOnObject", 47, 2, -1),
    Sketcher.Constraint("PointOnObject", 75, 2, -1),
    Sketcher.Constraint("Parallel", 9, 11),
    Sketcher.Constraint("Parallel", 11, 13),
    Sketcher.Constraint("Parallel", 13, 15),
    Sketcher.Constraint("Perpendicular", 7, 19),
    Sketcher.Constraint("Perpendicular", 15, 21),
    Sketcher.Constraint("Parallel", 21, 23),
    Sketcher.Constraint("Parallel", 23, 26),
    Sketcher.Constraint("Perpendicular", 17, 28),
    Sketcher.Constraint("Perpendicular", 26, 50),
    Sketcher.Constraint("Perpendicular", 50, 52),
    Sketcher.Constraint("Parallel", 52, 54),
    Sketcher.Constraint("Parallel", 28, 56),
    Sketcher.Constraint("Perpendicular", 19, 58),
    Sketcher.Constraint("Perpendicular", 54, 60),
    Sketcher.Constraint("Parallel", 60, 62),
    Sketcher.Constraint("Perpendicular", 56, 64),
    Sketcher.Constraint("Parallel", 62, 70),
    Sketcher.Constraint("Perpendicular", 58, 79),
    Sketcher.Constraint("Perpendicular", 70, 81),
    Sketcher.Constraint("Horizontal", 17, 2, 18, 2),
    Sketcher.Constraint("Horizontal", 16, 2, 19, 2),
    Sketcher.Constraint("Horizontal", 15, 2, 20, 2),
    Sketcher.Constraint("Horizontal", 14, 2, 21, 2),
    Sketcher.Constraint("Horizontal", 13, 2, 22, 2),
    Sketcher.Constraint("Horizontal", 23, 2, 24, 1),
    Sketcher.Constraint("Horizontal", 10, 2, 25, 2),
    Sketcher.Constraint("Horizontal", 8, 2, 26, 2),
    Sketcher.Constraint("Horizontal", 7, 2, 27, 2),
    Sketcher.Constraint("Horizontal", 46, 2, 67, 2),
    Sketcher.Constraint("Horizontal", 68, 2, 71, 2),
    Sketcher.Constraint("Horizontal", 66, 2, 73, 2),
    Sketcher.Constraint("Vertical", 43, 3, 51, 3),
    Sketcher.Constraint("Vertical", 1, 2, 33, 2),
    Sketcher.Constraint("Vertical", 32, 2, 39, 2),
    Sketcher.Constraint("Vertical", 22, 2, 41, 2),
    Sketcher.Constraint("Vertical", 40, 2, 45, 2),
    Sketcher.Constraint("Vertical", 10, 2, 49, 2),
    Sketcher.Constraint("Vertical", 11, 2, 50, 2),
    Sketcher.Constraint("Vertical", 50, 2, 51, 1),
    Sketcher.Constraint("Vertical", 6, 2, 56, 2),
    Sketcher.Constraint("Vertical", 56, 2, 57, 2),
    Sketcher.Constraint("Vertical", 54, 2, 59, 2),
    Sketcher.Constraint("Vertical", 9, 2, 60, 2),
    Sketcher.Constraint("Vertical", 14, 2, 61, 2),
    Sketcher.Constraint("Vertical", 17, 2, 64, 2),
    Sketcher.Constraint("Vertical", 24, 1, 69, 1),
    Sketcher.Constraint("Vertical", 64, 2, 78, 2),
    Sketcher.Constraint("Vertical", 62, 2, 80, 2),
    Sketcher.Constraint("Equal", 48, 1),
    Sketcher.Constraint("Equal", 53, 14),
    Sketcher.Constraint("Equal", 1, 34),
    Sketcher.Constraint("Equal", 22, 61),
    Sketcher.Constraint("Equal", 31, 76),
    Sketcher.Constraint("Equal", 11, 13),
    Sketcher.Constraint("Equal", 54, 81),
    Sketcher.Constraint("Radius", 6, 22.5),
    Sketcher.Constraint("DistanceX", 2, 1, 2, 2, 10.0),
    Sketcher.Constraint("DistanceX", 46, 2, 46, 1, 1.0),
    Sketcher.Constraint("DistanceY", 40, 2, 40, 1, 2.0),
    Sketcher.Constraint("DistanceY", 67, 2, 67, 1, 30.0),
    Sketcher.Constraint("Angle", 79, Q("-50 deg")),
    Sketcher.Constraint("DistanceX", 31, 1, 31, 2, 7.5),
    Sketcher.Constraint("DistanceX", 41, 2, 41, 1, 8.5),
    Sketcher.Constraint("DistanceX", 6, 3, -1, 1, 50.0),
    Sketcher.Constraint("DistanceY", 40, 2, -1, 1, 50.0),
    Sketcher.Constraint("DistanceY", 65, 2, -1, 1, 8.5),
    Sketcher.Constraint("Radius", 12, 23.5),
    Sketcher.Constraint("DistanceX", 77, 2, 77, 1, 19.0),
    Sketcher.Constraint("DistanceX", 72, 2, 72, 1, 3.5),
    Sketcher.Constraint("DistanceY", 6, 3, -1, 1, 120.0),
    Sketcher.Constraint("DistanceX", 0, 2, -1, 1, 80.0),
    Sketcher.Constraint("DistanceX", 71, 2, -1, 1, 22.0),
    Sketcher.Constraint("Radius", 8, 8.247),
    Sketcher.Constraint("Radius", 55, 7.519),
    Sketcher.Constraint("DistanceY", 9, 2, -1, 1, 141.5),
    Sketcher.Constraint("DistanceX", 66, 2, -1, 1, 26.5),
    Sketcher.Constraint("DistanceX", 25, 2, 25, 1, 7.793),
    Sketcher.Constraint("DistanceX", 53, 1, 53, 2, 1.414),
    Sketcher.Constraint("DistanceX", 75, 1, 75, 2, 40.029),
    Sketcher.Constraint("DistanceY", 5, 2, 5, 1, 27.763),
    Sketcher.Constraint("DistanceY", 38, 1, 38, 2, 58.838),
    Sketcher.Constraint("DistanceX", 55, 2, -1, 1, 55.76),
    Sketcher.Constraint("DistanceY", 63, 2, -1, 1, 35.76),
    Sketcher.Constraint("DistanceX", 0, 2, 0, 1, 14.7897),
    Sketcher.Constraint("DistanceX", 4, 1, 4, 2, 19.5692),
    Sketcher.Constraint("DistanceX", 33, 2, 33, 1, 30.5692),
    Sketcher.Constraint("DistanceX", 35, 1, 35, 2, 31.5692),
    Sketcher.Constraint("DistanceY", 30, 1, 30, 2, 59.7874),
    Sketcher.Constraint("DistanceY", 36, 2, 36, 1, 33.8115),
])
pocket1 = body.newObject("PartDesign::Pocket", "Pocket")
pocket1.Profile = sketch2
pocket1.Length = 20
pocket1.Reversed = True

sketch3 = body.newObject("Sketcher::SketchObject", "Sketch002")
sketch3.AttachmentSupport = (doc.getObject("XZ_Plane"), [""])
sketch3.MapMode = "FlatFace"
sketch3.AttachmentOffset = App.Placement(V(0, 0, -10), App.Rotation())
sketch3.addGeometry([
    Part.Circle(V(-76, -4, 0), V(0, 0, 1), 1.3),
    Part.Circle(V(-76, -58.7, 0), V(0, 0, 1), 1.3),
    Part.Circle(V(-36, -58.7, 0), V(0, 0, 1), 1.3),
    Part.Circle(V(-24, -146, 0), V(0, 0, 1), 1.3),
    Part.Circle(V(-76, -146, 0), V(0, 0, 1), 1.3),
    Part.Circle(V(-76, -106.1, 0), V(0, 0, 1), 1.3),
], False)
sketch3.addConstraint([
    Sketcher.Constraint("Equal", 0, 1),
    Sketcher.Constraint("Equal", 1, 2),
    Sketcher.Constraint("Equal", 2, 3),
    Sketcher.Constraint("Equal", 3, 4),
    Sketcher.Constraint("Equal", 4, 5),
    Sketcher.Constraint("Horizontal", 1, 3, 2, 3),
    Sketcher.Constraint("Horizontal", 3, 3, 4, 3),
    Sketcher.Constraint("Vertical", 0, 3, 1, 3),
    Sketcher.Constraint("Vertical", 1, 3, 4, 3),
    Sketcher.Constraint("Vertical", 4, 3, 5, 3),
    Sketcher.Constraint("Diameter", 0, 2.65),
    Sketcher.Constraint("DistanceY", 0, 3, -1, 1, 4.0),
    Sketcher.Constraint("DistanceX", 1, 3, 2, 3, 40.0),
    Sketcher.Constraint("DistanceX", 0, 3, -1, 1, 76.0),
    Sketcher.Constraint("DistanceX", 3, 3, -1, 1, 24.0),
    Sketcher.Constraint("DistanceY", 3, 3, -1, 1, 146.0),
    Sketcher.Constraint("DistanceY", 1, 3, -1, 1, 58.741),
    Sketcher.Constraint("DistanceY", 5, 3, -1, 1, 106.0864),
])
pocket2 = body.newObject("PartDesign::Pocket", "Pocket001")
pocket2.Profile = sketch3
pocket2.Length = 10
pocket2.Reversed = True

sketch4 = body.newObject("Sketcher::SketchObject", "Sketch003")
sketch4.AttachmentSupport = (doc.getObject("XZ_Plane"), [""])
sketch4.MapMode = "FlatFace"
sketch4.AttachmentOffset = App.Placement(V(0, 0, -10), App.Rotation())
sketch4.addGeometry([
    Part.Circle(V(-66.1, -36.8, 0), V(0, 0, 1), 1.3),
    Part.Circle(V(-33.9, -113.2, 0), V(0, 0, 1), 1.3),
], False)
sketch4.addConstraint([
    Sketcher.Constraint("Equal", 0, 1),
    Sketcher.Constraint("Diameter", 0, 2.65),
    Sketcher.Constraint("DistanceX", 0, 3, 1, 3, 32.245),
    Sketcher.Constraint("DistanceX", 0, 3, -1, 1, 66.1225),
    Sketcher.Constraint("DistanceY", 0, 3, -1, 1, 36.8056),
    Sketcher.Constraint("DistanceY", 1, 3, -1, 1, 113.1944),
])
pocket3 = body.newObject("PartDesign::Pocket", "Pocket002")
pocket3.Profile = sketch4
pocket3.Length = 10
pocket3.Reversed = True

sketch5 = body.newObject("Sketcher::SketchObject", "Sketch004")
sketch5.AttachmentSupport = (doc.getObject("XY_Plane"), [""])
sketch5.MapMode = "FlatFace"
sketch5.addGeometry(Part.Circle(V(-26, 5, 0), V(0, 0, 1), 1.5), False)
sketch5.addConstraint([
    Sketcher.Constraint("Diameter", 0, 3.0),
    Sketcher.Constraint("DistanceY", -1, 1, 0, 3, 5.0),
    Sketcher.Constraint("DistanceX", 0, 3, -1, 1, 26.0),
])
pad2 = body.newObject("PartDesign::Pad", "Pad001")
pad2.Profile = sketch5
pad2.Length = 30

doc.recompute()
